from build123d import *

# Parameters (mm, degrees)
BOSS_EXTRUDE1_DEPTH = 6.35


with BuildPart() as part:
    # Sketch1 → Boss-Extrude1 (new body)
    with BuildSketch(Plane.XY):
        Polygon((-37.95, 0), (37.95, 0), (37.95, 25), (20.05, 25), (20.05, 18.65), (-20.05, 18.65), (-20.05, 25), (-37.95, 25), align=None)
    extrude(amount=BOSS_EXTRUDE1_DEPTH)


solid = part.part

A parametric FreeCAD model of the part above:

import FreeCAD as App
import Part
import Sketcher
Q = App.Units.Quantity


def add_polygon(sketch, points):
    """Adds a closed chain of lines whose ends are joined by coincident constraints."""
    first, n = sketch.GeometryCount, len(points)
    for a, b in zip(points, points[1:] + points[:1]):
        sketch.addGeometry(Part.LineSegment(App.Vector(*a, 0), App.Vector(*b, 0)), False)
    for i in range(n):
        sketch.addConstraint(Sketcher.Constraint("Coincident", first + i, 2, first + (i + 1) % n, 1))

doc = App.newDocument("Part")
body = doc.addObject("PartDesign::Body", "Body")

sketch1 = body.newObject("Sketcher::SketchObject", "Sketch")
sketch1.AttachmentSupport = (doc.getObject("XY_Plane"), [""])
sketch1.MapMode = "FlatFace"
add_polygon(sketch1, [(-38, 0), (38, 0), (38, 25), (20, 25), (20, 19), (-20, 19), (-20, 25), (-38, 25)])
sketch1.addConstraint(Sketcher.Constraint("Horizontal", 0))
sketch1.addConstraint(Sketcher.Constraint("Vertical", 1))
sketch1.addConstraint(Sketcher.Constraint("Horizontal", 2))
sketch1.addConstraint(Sketcher.Constraint("Vertical", 3))
sketch1.addConstraint(Sketcher.Constraint("Horizontal", 4))
sketch1.addConstraint(Sketcher.Constraint("Vertical", 5))
sketch1.addConstraint(Sketcher.Constraint("Horizontal", 6))
sketch1.addConstraint(Sketcher.Constraint("Vertical", 7))
sketch1.addConstraint(Sketcher.Constraint("Symmetric", 0, 2, 7, 2, -1, 1))
sketch1.addConstraint(Sketcher.Constraint("Symmetric", 2, 2, 5, 2, -2))
sketch1.addConstraint(Sketcher.Constraint("DistanceY", 1, 1, 1, 2, Q("25 mm")))
sketch1.addConstraint(Sketcher.Constraint("DistanceX", 0, 1, 0, 2, Q("75.9 mm")))
sketch1.addConstraint(Sketcher.Constraint("DistanceX", 2, 2, 2, 1, Q("17.9 mm")))
sketch1.addConstraint(Sketcher.Constraint("DistanceY", 3, 2, 3, 1, Q("6.35 mm")))
pad1 = body.newObject("PartDesign::Pad", "Pad")
pad1.Profile = sketch1
pad1.Length = 6.35

doc.recompute()
